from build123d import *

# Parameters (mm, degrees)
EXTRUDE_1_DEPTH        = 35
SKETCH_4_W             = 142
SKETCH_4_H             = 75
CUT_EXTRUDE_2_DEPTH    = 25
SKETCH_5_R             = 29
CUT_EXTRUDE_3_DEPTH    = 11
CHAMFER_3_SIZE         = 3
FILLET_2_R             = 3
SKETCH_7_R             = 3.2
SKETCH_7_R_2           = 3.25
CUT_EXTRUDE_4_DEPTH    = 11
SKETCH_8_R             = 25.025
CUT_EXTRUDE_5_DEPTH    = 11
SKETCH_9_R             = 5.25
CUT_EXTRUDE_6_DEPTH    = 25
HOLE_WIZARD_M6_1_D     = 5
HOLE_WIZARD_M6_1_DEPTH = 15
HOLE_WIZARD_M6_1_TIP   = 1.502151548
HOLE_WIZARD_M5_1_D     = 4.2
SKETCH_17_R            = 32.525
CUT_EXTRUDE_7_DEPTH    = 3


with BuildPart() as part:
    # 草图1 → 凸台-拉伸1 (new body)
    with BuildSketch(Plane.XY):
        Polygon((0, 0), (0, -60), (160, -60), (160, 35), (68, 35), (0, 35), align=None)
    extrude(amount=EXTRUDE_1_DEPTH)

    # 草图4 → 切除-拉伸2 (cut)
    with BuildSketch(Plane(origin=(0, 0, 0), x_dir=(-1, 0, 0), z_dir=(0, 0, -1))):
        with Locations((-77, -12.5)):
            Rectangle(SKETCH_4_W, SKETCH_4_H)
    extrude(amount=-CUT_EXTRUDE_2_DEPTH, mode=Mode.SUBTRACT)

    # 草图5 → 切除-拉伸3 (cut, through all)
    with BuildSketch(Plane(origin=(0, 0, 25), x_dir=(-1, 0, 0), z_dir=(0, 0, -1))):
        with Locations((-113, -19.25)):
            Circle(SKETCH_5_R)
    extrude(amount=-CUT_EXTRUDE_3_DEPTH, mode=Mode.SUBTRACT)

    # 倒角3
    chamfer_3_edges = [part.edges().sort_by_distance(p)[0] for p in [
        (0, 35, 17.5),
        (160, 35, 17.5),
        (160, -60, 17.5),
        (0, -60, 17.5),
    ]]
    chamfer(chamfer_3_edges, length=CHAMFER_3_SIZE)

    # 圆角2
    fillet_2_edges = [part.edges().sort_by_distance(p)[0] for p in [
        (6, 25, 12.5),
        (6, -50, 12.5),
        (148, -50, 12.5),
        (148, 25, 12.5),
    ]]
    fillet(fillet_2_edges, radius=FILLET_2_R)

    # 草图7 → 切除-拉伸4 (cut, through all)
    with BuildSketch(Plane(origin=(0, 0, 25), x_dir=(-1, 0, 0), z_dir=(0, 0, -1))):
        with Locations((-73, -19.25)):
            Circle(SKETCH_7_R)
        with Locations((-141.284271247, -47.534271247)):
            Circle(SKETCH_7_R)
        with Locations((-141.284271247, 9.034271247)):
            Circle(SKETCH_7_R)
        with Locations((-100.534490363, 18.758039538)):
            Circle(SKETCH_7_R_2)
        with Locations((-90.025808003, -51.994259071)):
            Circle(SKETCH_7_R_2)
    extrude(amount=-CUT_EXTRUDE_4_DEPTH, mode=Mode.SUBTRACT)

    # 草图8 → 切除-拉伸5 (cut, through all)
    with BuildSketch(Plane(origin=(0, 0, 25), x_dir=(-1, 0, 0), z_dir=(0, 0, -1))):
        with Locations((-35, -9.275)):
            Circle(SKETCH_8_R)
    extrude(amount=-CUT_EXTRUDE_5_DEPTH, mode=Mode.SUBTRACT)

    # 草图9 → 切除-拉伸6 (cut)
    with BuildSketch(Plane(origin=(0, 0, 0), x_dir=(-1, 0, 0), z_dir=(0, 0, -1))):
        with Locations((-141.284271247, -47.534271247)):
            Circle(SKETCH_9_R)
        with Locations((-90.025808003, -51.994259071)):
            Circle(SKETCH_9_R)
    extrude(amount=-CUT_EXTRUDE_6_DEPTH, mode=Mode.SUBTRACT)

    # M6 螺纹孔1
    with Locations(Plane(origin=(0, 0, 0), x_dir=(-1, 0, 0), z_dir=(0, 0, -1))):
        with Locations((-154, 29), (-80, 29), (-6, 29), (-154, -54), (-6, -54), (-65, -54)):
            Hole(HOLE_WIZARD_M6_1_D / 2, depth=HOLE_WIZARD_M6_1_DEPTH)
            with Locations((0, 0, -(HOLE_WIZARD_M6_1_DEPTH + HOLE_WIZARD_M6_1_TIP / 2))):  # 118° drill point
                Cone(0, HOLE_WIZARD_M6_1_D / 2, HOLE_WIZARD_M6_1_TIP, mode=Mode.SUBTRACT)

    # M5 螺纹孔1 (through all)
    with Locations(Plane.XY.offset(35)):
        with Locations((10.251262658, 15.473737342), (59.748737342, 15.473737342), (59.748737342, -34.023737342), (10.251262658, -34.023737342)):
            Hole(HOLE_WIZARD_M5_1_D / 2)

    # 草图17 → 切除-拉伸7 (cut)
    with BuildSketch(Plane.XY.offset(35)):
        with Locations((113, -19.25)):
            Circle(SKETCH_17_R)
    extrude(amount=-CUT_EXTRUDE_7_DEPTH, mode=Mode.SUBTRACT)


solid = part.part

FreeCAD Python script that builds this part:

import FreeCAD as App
import Part
import Sketcher
Q = App.Units.Quantity


def edges_at(feature, points):
    """Names of the edges that pass closest to the given points."""
    edges = feature.Shape.Edges
    near = lambda p: min(range(len(edges)), key=lambda i: edges[i].distToShape(Part.Vertex(*p))[0])
    return sorted({f"Edge{near(p) + 1}" for p in points})


def add_polygon(sketch, points):
    """Adds a closed chain of lines whose ends are joined by coincident constraints."""
    first, n = sketch.GeometryCount, len(points)
    for a, b in zip(points, points[1:] + points[:1]):
        sketch.addGeometry(Part.LineSegment(App.Vector(*a, 0), App.Vector(*b, 0)), False)
    for i in range(n):
        sketch.addConstraint(Sketcher.Constraint("Coincident", first + i, 2, first + (i + 1) % n, 1))

doc = App.newDocument("Part")
params = doc.addObject("Spreadsheet::Sheet", "Params")
for row, (alias, value) in enumerate([
    ("sketch1_width", "160 mm"),
    ("sketch1_height", "95 mm"),
    ("pad1_length", "35 mm"),
    ("sketch2_width", "142 mm"),
    ("sketch2_height", "75 mm"),
    ("pocket1_length", "25 mm"),
    ("sketch3_diameter", "58 mm"),
    ("chamfer_size", "3 mm"),
    ("fillet_radius", "3 mm"),
    ("sketch4_diameter", "6.4 mm"),
    ("sketch4_diameter2", "6.5 mm"),
    ("sketch5_diameter", "50.05 mm"),
    ("sketch6_diameter", "10.5 mm"),
    ("pocket5_length", "25 mm"),
    ("sketch7_diameter", "5 mm"),
    ("hole_diameter", "5 mm"),
    ("hole_depth", "15 mm"),
    ("sketch8_diameter", "4.2 mm"),
    ("hole2_diameter", "4.2 mm"),
    ("sketch9_diameter", "65.05 mm"),
    ("pocket6_length", "3 mm"),
], start=1):
    params.set(f"A{row}", alias)
    params.set(f"B{row}", "=" + value)
    params.setAlias(f"B{row}", alias)

body = doc.addObject("PartDesign::Body", "Body")

sketch1 = doc.addObject("Sketcher::SketchObject", "Sketch")
body.addObject(sketch1)
sketch1.AttachmentSupport = (doc.XY_Plane, [""])
sketch1.MapMode = "FlatFace"
add_polygon(sketch1, [(0, -60), (160, -60), (160, 35), (0, 35)])
sketch1.addConstraint([
    Sketcher.Constraint("Horizontal", 0),
    Sketcher.Constraint("Vertical", 1),
    Sketcher.Constraint("Horizontal", 2),
    Sketcher.Constraint("Vertical", 3),
    Sketcher.Constraint("PointOnObject", 2, 2, -2),
    Sketcher.Constraint("DistanceX", 0, 1, 0, 2, Q("160 mm")),
    Sketcher.Constraint("DistanceY", 1, 1, 1, 2, Q("95 mm")),
    Sketcher.Constraint("DistanceY", 0, 2, -1, 1, Q("60 mm")),
])
sketch1.setExpression("Constraints[9]", "Params.sketch1_width")
sketch1.setExpression("Constraints[10]", "Params.sketch1_height")
pad1 = doc.addObject("PartDesign::Pad", "Pad")
body.addObject(pad1)
pad1.Profile = sketch1
pad1.setExpression("Length", "Params.pad1_length")

sketch2 = doc.addObject("Sketcher::SketchObject", "Sketch001")
body.addObject(sketch2)
sketch2.AttachmentSupport = (doc.XY_Plane, [""])
sketch2.MapMode = "FlatFace"
add_polygon(sketch2, [(148, 25), (148, -50), (6, -50), (6, 25)])
sketch2.addConstraint([
    Sketcher.Constraint("Vertical", 0),
    Sketcher.Constraint("Horizontal", 1),
    Sketcher.Constraint("Vertical", 2),
    Sketcher.Constraint("Horizontal", 3),
    Sketcher.Constraint("DistanceX", 1, 2, 1, 1, Q("142 mm")),
    Sketcher.Constraint("DistanceY", 0, 2, 0, 1, Q("75 mm")),
    Sketcher.Constraint("DistanceX", -1, 1, 0, 2, Q("148 mm")),
    Sketcher.Constraint("DistanceY", 0, 2, -1, 1, Q("50 mm")),
])
sketch2.setExpression("Constraints[8]", "Params.sketch2_width")
sketch2.setExpression("Constraints[9]", "Params.sketch2_height")
pocket1 = doc.addObject("PartDesign::Pocket", "Pocket")
body.addObject(pocket1)
pocket1.Profile = sketch2
pocket1.setExpression("Length", "Params.pocket1_length")
pocket1.Reversed = True

sketch3 = doc.addObject("Sketcher::SketchObject", "Sketch002")
body.addObject(sketch3)
sketch3.AttachmentSupport = (doc.XY_Plane, [""])
sketch3.MapMode = "FlatFace"
sketch3.AttachmentOffset = App.Placement(App.Vector(0, 0, 25), App.Rotation())
sketch3.addGeometry(Part.Circle(App.Vector(113, -19.25, 0), App.Vector(0, 0, 1), 29), False)
sketch3.addConstraint([
    Sketcher.Constraint("Diameter", 0, Q("58 mm")),
    Sketcher.Constraint("DistanceX", -1, 1, 0, 3, Q("113 mm")),
    Sketcher.Constraint("DistanceY", 0, 3, -1, 1, Q("19.25 mm")),
])
sketch3.setExpression("Constraints[0]", "Params.sketch3_diameter")
pocket2 = doc.addObject("PartDesign::Pocket", "Pocket001")
body.addObject(pocket2)
pocket2.Profile = sketch3
pocket2.Type = "ThroughAll"
pocket2.Reversed = True
doc.recompute()

chamfer = doc.addObject("PartDesign::Chamfer", "Chamfer")
body.addObject(chamfer)
chamfer.Base = (pocket2, edges_at(pocket2, [
    (0, 35, 17.5),
    (160, 35, 17.5),
    (160, -60, 17.5),
    (0, -60, 17.5),
]))
chamfer.setExpression("Size", "Params.chamfer_size")
doc.recompute()

fillet = doc.addObject("PartDesign::Fillet", "Fillet")
body.addObject(fillet)
fillet.Base = (chamfer, edges_at(chamfer, [
    (6, 25, 12.5),
    (6, -50, 12.5),
    (148, -50, 12.5),
    (148, 25, 12.5),
]))
fillet.setExpression("Radius", "Params.fillet_radius")

sketch4 = doc.addObject("Sketcher::SketchObject", "Sketch003")
body.addObject(sketch4)
sketch4.AttachmentSupport = (doc.XY_Plane, [""])
sketch4.MapMode = "FlatFace"
sketch4.AttachmentOffset = App.Placement(App.Vector(0, 0, 25), App.Rotation())
sketch4.addGeometry([
    Part.Circle(App.Vector(73, -19.25, 0), App.Vector(0, 0, 1), 3.2),
    Part.Circle(App.Vector(141.284271, -47.534271, 0), App.Vector(0, 0, 1), 3.2),
    Part.Circle(App.Vector(141.284271, 9.034271, 0), App.Vector(0, 0, 1), 3.2),
    Part.Circle(App.Vector(100.53449, 18.75804, 0), App.Vector(0, 0, 1), 3.25),
    Part.Circle(App.Vector(90.025808, -51.994259, 0), App.Vector(0, 0, 1), 3.25),
], False)
sketch4.addConstraint([
    Sketcher.Constraint("Equal", 0, 1),
    Sketcher.Constraint("Equal", 1, 2),
    Sketcher.Constraint("Equal", 3, 4),
    Sketcher.Constraint("Vertical", 1, 3, 2, 3),
    Sketcher.Constraint("Diameter", 0, Q("6.4 mm")),
    Sketcher.Constraint("Diameter", 3, Q("6.5 mm")),
    Sketcher.Constraint("DistanceX", -1, 1, 0, 3, Q("73 mm")),
    Sketcher.Constraint("DistanceY", 0, 3, -1, 1, Q("19.25 mm")),
    Sketcher.Constraint("DistanceY", 4, 3, 3, 3, Q("70.752299 mm")),
    Sketcher.Constraint("DistanceX", -1, 1, 1, 3, Q("141.284271 mm")),
    Sketcher.Constraint("DistanceY", 1, 3, -1, 1, Q("47.534271 mm")),
    Sketcher.Constraint("DistanceY", -1, 1, 2, 3, Q("9.034271 mm")),
    Sketcher.Constraint("DistanceX", -1, 1, 3, 3, Q("100.53449 mm")),
    Sketcher.Constraint("DistanceY", -1, 1, 3, 3, Q("18.75804 mm")),
    Sketcher.Constraint("DistanceX", -1, 1, 4, 3, Q("90.025808 mm")),
])
sketch4.setExpression("Constraints[4]", "Params.sketch4_diameter")
sketch4.setExpression("Constraints[5]", "Params.sketch4_diameter2")
pocket3 = doc.addObject("PartDesign::Pocket", "Pocket002")
body.addObject(pocket3)
pocket3.Profile = sketch4
pocket3.Type = "ThroughAll"
pocket3.Reversed = True

sketch5 = doc.addObject("Sketcher::SketchObject", "Sketch004")
body.addObject(sketch5)
sketch5.AttachmentSupport = (doc.XY_Plane, [""])
sketch5.MapMode = "FlatFace"
sketch5.AttachmentOffset = App.Placement(App.Vector(0, 0, 25), App.Rotation())
sketch5.addGeometry(Part.Circle(App.Vector(35, -9.275, 0), App.Vector(0, 0, 1), 25.025), False)
sketch5.addConstraint([
    Sketcher.Constraint("Diameter", 0, Q("50.05 mm")),
    Sketcher.Constraint("DistanceX", -1, 1, 0, 3, Q("35 mm")),
    Sketcher.Constraint("DistanceY", 0, 3, -1, 1, Q("9.275 mm")),
])
sketch5.setExpression("Constraints[0]", "Params.sketch5_diameter")
pocket4 = doc.addObject("PartDesign::Pocket", "Pocket003")
body.addObject(pocket4)
pocket4.Profile = sketch5
pocket4.Type = "ThroughAll"
pocket4.Reversed = True

sketch6 = doc.addObject("Sketcher::SketchObject", "Sketch005")
body.addObject(sketch6)
sketch6.AttachmentSupport = (doc.XY_Plane, [""])
sketch6.MapMode = "FlatFace"
sketch6.addGeometry([
    Part.Circle(App.Vector(141.284271, -47.534271, 0), App.Vector(0, 0, 1), 5.25),
    Part.Circle(App.Vector(90.025808, -51.994259, 0), App.Vector(0, 0, 1), 5.25),
], False)
sketch6.addConstraint([
    Sketcher.Constraint("Equal", 0, 1),
    Sketcher.Constraint("Diameter", 0, Q("10.5 mm")),
    Sketcher.Constraint("DistanceX", -1, 1, 0, 3, Q("141.284271 mm")),
    Sketcher.Constraint("DistanceY", 0, 3, -1, 1, Q("47.534271 mm")),
    Sketcher.Constraint("DistanceX", -1, 1, 1, 3, Q("90.025808 mm")),
    Sketcher.Constraint("DistanceY", 1, 3, -1, 1, Q("51.994259 mm")),
])
sketch6.setExpression("Constraints[1]", "Params.sketch6_diameter")
pocket5 = doc.addObject("PartDesign::Pocket", "Pocket004")
body.addObject(pocket5)
pocket5.Profile = sketch6
pocket5.setExpression("Length", "Params.pocket5_length")
pocket5.Reversed = True

sketch7 = doc.addObject("Sketcher::SketchObject", "Sketch006")
body.addObject(sketch7)
sketch7.AttachmentSupport = (doc.XY_Plane, [""])
sketch7.MapMode = "FlatFace"
sketch7.addGeometry([
    Part.Circle(App.Vector(154, 29, 0), App.Vector(0, 0, 1), 2.5),
    Part.Circle(App.Vector(80, 29, 0), App.Vector(0, 0, 1), 2.5),
    Part.Circle(App.Vector(6, 29, 0), App.Vector(0, 0, 1), 2.5),
    Part.Circle(App.Vector(154, -54, 0), App.Vector(0, 0, 1), 2.5),
    Part.Circle(App.Vector(6, -54, 0), App.Vector(0, 0, 1), 2.5),
    Part.Circle(App.Vector(65, -54, 0), App.Vector(0, 0, 1), 2.5),
], False)
sketch7.addConstraint([
    Sketcher.Constraint("Equal", 0, 1),
    Sketcher.Constraint("Equal", 1, 2),
    Sketcher.Constraint("Equal", 2, 3),
    Sketcher.Constraint("Equal", 3, 4),
    Sketcher.Constraint("Equal", 4, 5),
    Sketcher.Constraint("Horizontal", 0, 3, 1, 3),
    Sketcher.Constraint("Horizontal", 1, 3, 2, 3),
    Sketcher.Constraint("Horizontal", 3, 3, 4, 3),
    Sketcher.Constraint("Horizontal", 4, 3, 5, 3),
    Sketcher.Constraint("Vertical", 0, 3, 3, 3),
    Sketcher.Constraint("Vertical", 2, 3, 4, 3),
    Sketcher.Constraint("Diameter", 0, Q("5 mm")),
    Sketcher.Constraint("DistanceX", -1, 1, 0, 3, Q("154 mm")),
    Sketcher.Constraint("DistanceY", -1, 1, 0, 3, Q("29 mm")),
    Sketcher.Constraint("DistanceX", -1, 1, 1, 3, Q("80 mm")),
    Sketcher.Constraint("DistanceX", -1, 1, 2, 3, Q("6 mm")),
    Sketcher.Constraint("DistanceY", 3, 3, -1, 1, Q("54 mm")),
    Sketcher.Constraint("DistanceX", -1, 1, 5, 3, Q("65 mm")),
])
sketch7.setExpression("Constraints[11]", "Params.sketch7_diameter")
doc.recompute()
hole = doc.addObject("PartDesign::Hole", "Hole")
body.addObject(hole)
hole.Profile = sketch7
hole.ThreadType = "None"
hole.setExpression("Diameter", "Params.hole_diameter")
hole.DepthType = "Dimension"
hole.setExpression("Depth", "Params.hole_depth")
hole.DrillPoint = "Angled"
hole.DrillPointAngle = 118
hole.Reversed = True

sketch8 = doc.addObject("Sketcher::SketchObject", "Sketch007")
body.addObject(sketch8)
sketch8.AttachmentSupport = (doc.XY_Plane, [""])
sketch8.MapMode = "FlatFace"
sketch8.AttachmentOffset = App.Placement(App.Vector(0, 0, 35), App.Rotation())
sketch8.addGeometry([
    Part.Circle(App.Vector(10.251263, 15.473737, 0), App.Vector(0, 0, 1), 2.1),
    Part.Circle(App.Vector(59.748737, 15.473737, 0), App.Vector(0, 0, 1), 2.1),
    Part.Circle(App.Vector(59.748737, -34.023737, 0), App.Vector(0, 0, 1), 2.1),
    Part.Circle(App.Vector(10.251263, -34.023737, 0), App.Vector(0, 0, 1), 2.1),
], False)
sketch8.addConstraint([
    Sketcher.Constraint("Equal", 0, 1),
    Sketcher.Constraint("Equal", 1, 2),
    Sketcher.Constraint("Equal", 2, 3),
    Sketcher.Constraint("Horizontal", 0, 3, 1, 3),
    Sketcher.Constraint("Horizontal", 2, 3, 3, 3),
    Sketcher.Constraint("Vertical", 1, 3, 2, 3),
    Sketcher.Constraint("Vertical", 0, 3, 3, 3),
    Sketcher.Constraint("Diameter", 0, Q("4.2 mm")),
    Sketcher.Constraint("DistanceX", -1, 1, 0, 3, Q("10.251263 mm")),
    Sketcher.Constraint("DistanceY", -1, 1, 0, 3, Q("15.473737 mm")),
    Sketcher.Constraint("DistanceX", -1, 1, 1, 3, Q("59.748737 mm")),
    Sketcher.Constraint("DistanceY", 2, 3, -1, 1, Q("34.023737 mm")),
])
sketch8.setExpression("Constraints[7]", "Params.sketch8_diameter")
doc.recompute()
hole2 = doc.addObject("PartDesign::Hole", "Hole001")
body.addObject(hole2)
hole2.Profile = sketch8
hole2.ThreadType = "None"
hole2.setExpression("Diameter", "Params.hole2_diameter")
hole2.DepthType = "ThroughAll"

sketch9 = doc.addObject("Sketcher::SketchObject", "Sketch008")
body.addObject(sketch9)
sketch9.AttachmentSupport = (doc.XY_Plane, [""])
sketch9.MapMode = "FlatFace"
sketch9.AttachmentOffset = App.Placement(App.Vector(0, 0, 35), App.Rotation())
sketch9.addGeometry(Part.Circle(App.Vector(113, -19.25, 0), App.Vector(0, 0, 1), 32.525), False)
sketch9.addConstraint([
    Sketcher.Constraint("Diameter", 0, Q("65.05 mm")),
    Sketcher.Constraint("DistanceX", -1, 1, 0, 3, Q("113 mm")),
    Sketcher.Constraint("DistanceY", 0, 3, -1, 1, Q("19.25 mm")),
])
sketch9.setExpression("Constraints[0]", "Params.sketch9_diameter")
pocket6 = doc.addObject("PartDesign::Pocket", "Pocket005")
body.addObject(pocket6)
pocket6.Profile = sketch9
pocket6.setExpression("Length", "Params.pocket6_length")

doc.recompute()
